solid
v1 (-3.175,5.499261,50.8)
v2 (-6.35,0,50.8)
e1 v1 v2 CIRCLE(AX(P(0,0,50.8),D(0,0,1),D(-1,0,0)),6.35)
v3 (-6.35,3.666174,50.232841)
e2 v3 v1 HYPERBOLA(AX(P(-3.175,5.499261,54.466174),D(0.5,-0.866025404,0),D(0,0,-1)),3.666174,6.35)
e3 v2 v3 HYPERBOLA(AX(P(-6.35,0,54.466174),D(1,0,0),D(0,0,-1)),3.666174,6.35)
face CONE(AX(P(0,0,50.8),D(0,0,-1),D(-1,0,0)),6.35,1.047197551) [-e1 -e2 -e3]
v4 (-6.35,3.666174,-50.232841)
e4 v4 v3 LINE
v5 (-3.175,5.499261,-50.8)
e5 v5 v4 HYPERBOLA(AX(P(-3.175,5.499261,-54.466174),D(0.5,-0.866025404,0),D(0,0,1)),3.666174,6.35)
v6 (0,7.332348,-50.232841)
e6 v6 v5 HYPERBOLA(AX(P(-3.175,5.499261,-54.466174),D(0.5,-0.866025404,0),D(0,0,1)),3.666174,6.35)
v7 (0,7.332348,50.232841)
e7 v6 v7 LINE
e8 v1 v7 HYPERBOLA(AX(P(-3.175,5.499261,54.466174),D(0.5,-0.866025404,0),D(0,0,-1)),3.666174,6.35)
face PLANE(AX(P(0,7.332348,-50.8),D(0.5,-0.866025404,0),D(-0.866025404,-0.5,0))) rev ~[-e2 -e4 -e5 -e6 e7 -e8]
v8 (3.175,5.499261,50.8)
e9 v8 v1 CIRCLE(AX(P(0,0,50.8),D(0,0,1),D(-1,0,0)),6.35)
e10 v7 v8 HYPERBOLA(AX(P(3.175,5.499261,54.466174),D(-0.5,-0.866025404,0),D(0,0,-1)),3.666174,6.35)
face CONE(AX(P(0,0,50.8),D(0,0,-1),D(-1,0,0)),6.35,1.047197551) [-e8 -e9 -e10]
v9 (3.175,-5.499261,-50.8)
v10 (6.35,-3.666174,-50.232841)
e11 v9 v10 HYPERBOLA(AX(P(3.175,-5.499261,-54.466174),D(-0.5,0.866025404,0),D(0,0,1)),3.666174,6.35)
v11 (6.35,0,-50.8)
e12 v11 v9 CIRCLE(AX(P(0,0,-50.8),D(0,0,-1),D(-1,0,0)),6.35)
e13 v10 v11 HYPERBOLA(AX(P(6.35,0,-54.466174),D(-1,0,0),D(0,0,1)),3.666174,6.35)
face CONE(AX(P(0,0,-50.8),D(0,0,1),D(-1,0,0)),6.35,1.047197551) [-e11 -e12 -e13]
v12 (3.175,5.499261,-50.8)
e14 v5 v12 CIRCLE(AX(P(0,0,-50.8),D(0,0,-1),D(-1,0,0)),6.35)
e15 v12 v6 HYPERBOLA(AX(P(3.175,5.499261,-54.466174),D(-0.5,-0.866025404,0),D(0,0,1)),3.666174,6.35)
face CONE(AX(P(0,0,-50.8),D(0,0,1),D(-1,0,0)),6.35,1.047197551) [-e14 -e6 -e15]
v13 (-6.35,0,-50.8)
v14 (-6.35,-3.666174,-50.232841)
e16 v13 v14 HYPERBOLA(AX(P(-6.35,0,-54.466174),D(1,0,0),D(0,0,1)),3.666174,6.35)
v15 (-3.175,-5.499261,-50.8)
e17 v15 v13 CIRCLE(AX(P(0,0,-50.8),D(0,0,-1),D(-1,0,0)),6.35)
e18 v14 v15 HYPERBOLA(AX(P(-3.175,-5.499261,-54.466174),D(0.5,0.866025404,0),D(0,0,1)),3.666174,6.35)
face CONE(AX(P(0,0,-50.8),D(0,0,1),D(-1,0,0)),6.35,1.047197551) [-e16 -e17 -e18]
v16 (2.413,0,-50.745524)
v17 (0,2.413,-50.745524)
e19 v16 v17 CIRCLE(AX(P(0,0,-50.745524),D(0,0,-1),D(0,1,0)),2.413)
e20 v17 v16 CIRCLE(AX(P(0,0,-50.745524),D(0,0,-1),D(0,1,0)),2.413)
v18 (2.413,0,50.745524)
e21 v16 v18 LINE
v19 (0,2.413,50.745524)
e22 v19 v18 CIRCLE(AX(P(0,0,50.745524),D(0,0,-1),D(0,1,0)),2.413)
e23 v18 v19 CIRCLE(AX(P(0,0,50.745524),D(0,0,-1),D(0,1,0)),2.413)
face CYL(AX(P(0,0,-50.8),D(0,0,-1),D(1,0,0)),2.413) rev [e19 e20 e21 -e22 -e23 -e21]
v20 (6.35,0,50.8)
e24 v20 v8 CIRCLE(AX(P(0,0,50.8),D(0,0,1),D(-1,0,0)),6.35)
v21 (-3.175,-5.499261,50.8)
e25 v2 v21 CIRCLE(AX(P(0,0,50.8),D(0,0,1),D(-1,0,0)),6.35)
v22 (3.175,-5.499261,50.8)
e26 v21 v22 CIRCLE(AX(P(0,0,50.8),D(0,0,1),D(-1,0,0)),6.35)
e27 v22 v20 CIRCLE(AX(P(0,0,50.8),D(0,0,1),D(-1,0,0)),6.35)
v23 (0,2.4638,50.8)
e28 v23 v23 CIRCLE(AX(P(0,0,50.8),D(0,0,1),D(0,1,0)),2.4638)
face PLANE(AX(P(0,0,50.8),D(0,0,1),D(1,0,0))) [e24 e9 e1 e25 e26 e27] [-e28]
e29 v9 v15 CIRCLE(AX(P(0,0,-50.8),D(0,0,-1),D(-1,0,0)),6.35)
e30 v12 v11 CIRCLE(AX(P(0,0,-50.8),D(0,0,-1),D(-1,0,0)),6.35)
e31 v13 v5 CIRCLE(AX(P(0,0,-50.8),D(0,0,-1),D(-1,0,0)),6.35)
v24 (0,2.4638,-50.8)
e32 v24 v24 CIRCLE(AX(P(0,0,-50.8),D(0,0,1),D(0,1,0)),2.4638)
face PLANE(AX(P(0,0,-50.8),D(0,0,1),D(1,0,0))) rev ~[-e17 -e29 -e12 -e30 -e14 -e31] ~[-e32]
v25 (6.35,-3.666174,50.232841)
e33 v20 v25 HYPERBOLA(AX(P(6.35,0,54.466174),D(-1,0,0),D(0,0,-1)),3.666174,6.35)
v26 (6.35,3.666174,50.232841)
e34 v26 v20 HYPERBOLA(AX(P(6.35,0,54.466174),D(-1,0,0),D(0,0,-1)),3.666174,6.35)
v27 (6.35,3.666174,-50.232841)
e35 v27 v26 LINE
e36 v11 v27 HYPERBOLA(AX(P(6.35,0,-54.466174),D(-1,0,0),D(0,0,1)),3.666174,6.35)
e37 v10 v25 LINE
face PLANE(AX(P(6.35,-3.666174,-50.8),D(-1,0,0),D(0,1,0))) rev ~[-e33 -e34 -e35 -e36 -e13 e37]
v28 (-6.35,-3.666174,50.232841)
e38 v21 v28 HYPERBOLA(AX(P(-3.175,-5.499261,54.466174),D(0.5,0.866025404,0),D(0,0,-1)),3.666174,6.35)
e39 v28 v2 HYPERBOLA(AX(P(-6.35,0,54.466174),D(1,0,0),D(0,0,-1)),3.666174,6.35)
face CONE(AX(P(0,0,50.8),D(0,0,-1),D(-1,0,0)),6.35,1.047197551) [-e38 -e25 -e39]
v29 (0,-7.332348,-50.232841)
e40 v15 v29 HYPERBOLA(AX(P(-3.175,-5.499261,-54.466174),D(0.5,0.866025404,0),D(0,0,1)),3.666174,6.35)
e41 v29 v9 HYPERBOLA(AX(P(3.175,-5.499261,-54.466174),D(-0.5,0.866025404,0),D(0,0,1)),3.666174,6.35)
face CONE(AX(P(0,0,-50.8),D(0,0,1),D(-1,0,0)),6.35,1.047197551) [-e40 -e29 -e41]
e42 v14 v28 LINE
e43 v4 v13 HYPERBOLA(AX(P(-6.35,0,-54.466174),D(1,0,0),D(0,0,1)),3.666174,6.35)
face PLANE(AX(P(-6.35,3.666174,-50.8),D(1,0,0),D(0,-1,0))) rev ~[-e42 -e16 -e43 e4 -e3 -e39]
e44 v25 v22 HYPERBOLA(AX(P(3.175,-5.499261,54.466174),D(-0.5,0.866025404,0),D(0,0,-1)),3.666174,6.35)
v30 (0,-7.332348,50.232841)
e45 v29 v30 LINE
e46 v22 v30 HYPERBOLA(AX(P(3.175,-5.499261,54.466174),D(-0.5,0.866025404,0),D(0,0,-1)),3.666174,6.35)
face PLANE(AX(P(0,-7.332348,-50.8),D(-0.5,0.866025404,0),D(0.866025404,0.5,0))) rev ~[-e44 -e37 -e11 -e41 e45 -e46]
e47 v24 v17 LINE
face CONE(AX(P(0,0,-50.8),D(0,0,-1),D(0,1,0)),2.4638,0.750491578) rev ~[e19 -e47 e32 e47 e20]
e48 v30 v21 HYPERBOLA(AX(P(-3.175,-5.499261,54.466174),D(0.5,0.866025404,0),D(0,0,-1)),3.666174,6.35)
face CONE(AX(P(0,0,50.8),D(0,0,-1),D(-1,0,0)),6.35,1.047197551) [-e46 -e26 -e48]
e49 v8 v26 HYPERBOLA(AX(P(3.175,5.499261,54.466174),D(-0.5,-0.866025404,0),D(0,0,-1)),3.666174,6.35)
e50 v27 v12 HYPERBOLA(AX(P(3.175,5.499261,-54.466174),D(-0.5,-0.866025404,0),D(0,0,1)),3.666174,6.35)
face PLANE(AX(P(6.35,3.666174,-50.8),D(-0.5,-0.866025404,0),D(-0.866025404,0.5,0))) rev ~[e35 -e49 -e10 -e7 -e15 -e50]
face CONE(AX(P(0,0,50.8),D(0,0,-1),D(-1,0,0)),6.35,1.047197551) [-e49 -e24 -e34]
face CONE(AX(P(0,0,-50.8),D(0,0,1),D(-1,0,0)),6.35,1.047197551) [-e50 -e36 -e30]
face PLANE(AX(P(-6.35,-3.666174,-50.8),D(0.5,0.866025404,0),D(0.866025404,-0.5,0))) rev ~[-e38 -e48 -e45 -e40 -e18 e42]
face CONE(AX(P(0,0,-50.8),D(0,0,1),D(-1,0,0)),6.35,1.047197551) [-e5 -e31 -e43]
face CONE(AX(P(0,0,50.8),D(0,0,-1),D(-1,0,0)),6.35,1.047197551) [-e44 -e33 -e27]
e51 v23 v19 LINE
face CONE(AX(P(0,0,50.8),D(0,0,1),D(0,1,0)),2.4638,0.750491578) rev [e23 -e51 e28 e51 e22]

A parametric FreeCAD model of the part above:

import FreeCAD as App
import Part
import Sketcher
from FreeCAD import Vector
Q = App.Units.Quantity


def faces_at(feature, points):
    """Names of the faces that lie closest to the given points."""
    faces = feature.Shape.Faces
    near = lambda p: min(range(len(faces)), key=lambda i: faces[i].distToShape(Part.Vertex(*p))[0])
    return sorted({f"Face{near(p) + 1}" for p in points})


def add_polygon(sketch, points):
    """Adds a closed chain of lines whose ends are joined by coincident constraints."""
    first, n = sketch.GeometryCount, len(points)
    for a, b in zip(points, points[1:] + points[:1]):
        sketch.addGeometry(Part.LineSegment(App.Vector(*a, 0), App.Vector(*b, 0)), False)
    for i in range(n):
        sketch.addConstraint(Sketcher.Constraint("Coincident", first + i, 2, first + (i + 1) % n, 1))

doc = App.newDocument("Part")
params = doc.addObject("Spreadsheet::Sheet", "Params")
for row, (alias, value) in enumerate([
    ("sketch1_diameter", "0.19 in"),
    ("pad1_length", "2 in"),
    ("pad1_length2", "2 in"),
    ("sketch2_width", "0.097 in"),
    ("groove_angle", "360 deg"),
    ("sketch3_diameter", "0.5 in"),
    ("pad2_length", "103.061971 mm"),
    ("draft_angle", "60 deg"),
    ("sketch4_diameter", "0.5 in"),
    ("pad3_length", "103.061971 mm"),
    ("draft2_angle", "60 deg"),
], start=1):
    params.set(f"A{row}", alias)
    params.set(f"B{row}", "=" + value)
    params.setAlias(f"B{row}", alias)

body = doc.addObject("PartDesign::Body", "Body")

sketch1 = body.newObject("Sketcher::SketchObject", "Sketch")
sketch1.AttachmentSupport = (doc.getObject("XY_Plane"), [""])
sketch1.MapMode = "FlatFace"
add_polygon(sketch1, [(0, 7.3), (-6.3, 3.7), (-6.3, -3.7), (0, -7.3), (6.3, -3.7), (6.3, 3.7)])
sketch1.addGeometry(Part.Circle(Vector(0, 0, 0), Vector(0, 0, 1), 2.4), False)
sketch1.addConstraint(Sketcher.Constraint("Vertical", 1))
sketch1.addConstraint(Sketcher.Constraint("Vertical", 4))
sketch1.addConstraint(Sketcher.Constraint("Coincident", 6, 3, -1, 1))
sketch1.addConstraint(Sketcher.Constraint("Symmetric", 0, 2, 3, 2, -1, 1))
sketch1.addConstraint(Sketcher.Constraint("Symmetric", 2, 2, 5, 2, -1, 1))
sketch1.addConstraint(Sketcher.Constraint("PointOnObject", 2, 2, -2))
sketch1.addConstraint(Sketcher.Constraint("Parallel", 2, 5))
sketch1.addConstraint(Sketcher.Constraint("Horizontal", 1, 2, 3, 2))
sketch1.addConstraint(Sketcher.Constraint("Diameter", 6, Q("0.19 in")))
sketch1.addConstraint(Sketcher.Constraint("Angle", 0, Q("-150 deg")))
sketch1.addConstraint(Sketcher.Constraint("DistanceX", 1, 2, 3, 2, Q("0.5 in")))
sketch1.addConstraint(Sketcher.Constraint("DistanceY", 1, 2, 1, 1, Q("7.332348 mm")))
sketch1.setExpression("Constraints[14]", "Params.sketch1_diameter")
pad1 = body.newObject("PartDesign::Pad", "Pad")
pad1.Profile = sketch1
pad1.Type = "TwoLengths"
pad1.setExpression("Length", "Params.pad1_length")
pad1.setExpression("Length2", "Params.pad1_length2")

sketch2 = body.newObject("Sketcher::SketchObject", "Sketch001")
sketch2.AttachmentSupport = (doc.getObject("YZ_Plane"), [""])
sketch2.MapMode = "FlatFace"
add_polygon(sketch2, [(0, -50.8), (2.5, -50.8), (0, -48.2)])
sketch2.addConstraint(Sketcher.Constraint("Horizontal", 0))
sketch2.addConstraint(Sketcher.Constraint("Vertical", 2))
sketch2.addConstraint(Sketcher.Constraint("PointOnObject", 1, 2, -2))
sketch2.addConstraint(Sketcher.Constraint("DistanceY", 0, 2, -1, 1, Q("2 in")))
sketch2.addConstraint(Sketcher.Constraint("Angle", 1, Q("133 deg")))
sketch2.addConstraint(Sketcher.Constraint("DistanceX", 0, 1, 0, 2, Q("0.097 in")))
sketch2.setExpression("Constraints[8]", "Params.sketch2_width")
groove = body.newObject("PartDesign::Groove", "Groove")
groove.Profile = sketch2
groove.ReferenceAxis = (sketch2, ["V_Axis"])
groove.setExpression("Angle", "Params.groove_angle")
body2 = doc.addObject("PartDesign::Body", "Body001")

sketch3 = body2.newObject("Sketcher::SketchObject", "Sketch002")
sketch3.AttachmentSupport = (doc.getObject("XY_Plane001"), [""])
sketch3.MapMode = "FlatFace"
sketch3.AttachmentOffset = App.Placement(Vector(0, 0, -2 * 25.4), App.Rotation())
add_polygon(sketch3, [(196, 197), (196, -197), (-196, -197), (-196, 197)])
sketch3.addGeometry(Part.Circle(Vector(0, 0, 0), Vector(0, 0, 1), 6), False)
sketch3.addConstraint(Sketcher.Constraint("Vertical", 0))
sketch3.addConstraint(Sketcher.Constraint("Horizontal", 1))
sketch3.addConstraint(Sketcher.Constraint("Vertical", 2))
sketch3.addConstraint(Sketcher.Constraint("Horizontal", 3))
sketch3.addConstraint(Sketcher.Constraint("Coincident", 4, 3, -1, 1))
sketch3.addConstraint(Sketcher.Constraint("Symmetric", 0, 2, 2, 2, -1, 1))
sketch3.addConstraint(Sketcher.Constraint("Diameter", 4, Q("0.5 in")))
sketch3.addConstraint(Sketcher.Constraint("DistanceX", 1, 2, 1, 1, Q("392.404 mm")))
sketch3.addConstraint(Sketcher.Constraint("DistanceY", 0, 2, 0, 1, Q("394.368 mm")))
sketch3.setExpression("Constraints[10]", "Params.sketch3_diameter")
pad2 = body2.newObject("PartDesign::Pad", "Pad001")
pad2.Profile = sketch3
pad2.setExpression("Length", "Params.pad2_length")
doc.recompute()

datumplane = body2.newObject("PartDesign::Plane", "DatumPlane")
datumplane.AttachmentSupport = (doc.getObject("XY_Plane001"), [""])
datumplane.MapMode = "FlatFace"
datumplane.AttachmentOffset = App.Placement(Vector(0, 0, -2 * 25.4), App.Rotation())
draft = body2.newObject("PartDesign::Draft", "Draft")
draft.Base = (pad2, faces_at(pad2, [
    (0, -197.184, 0.731),
    (-196.202, 0, 0.731),
    (0, 197.184, 0.731),
    (196.202, 0, 0.731),
    (6.35, 0, 0.731),
]))
draft.NeutralPlane = (datumplane, [""])
draft.setExpression("Angle", "Params.draft_angle")
draft.Reversed = False
doc.recompute()

boolean = body.newObject("PartDesign::Boolean", "Boolean")
boolean.Type = "Cut"
boolean.addObjects([body2])
doc.recompute()

mirrored = body.newObject("PartDesign::Mirrored", "Mirrored")
mirrored.Originals = [groove]
mirrored.MirrorPlane = (doc.getObject("XY_Plane"), [""])
body.Tip = mirrored
body3 = doc.addObject("PartDesign::Body", "Body002")

sketch4 = body3.newObject("Sketcher::SketchObject", "Sketch003")
sketch4.AttachmentSupport = (doc.getObject("XY_Plane002"), [""])
sketch4.MapMode = "FlatFace"
sketch4.AttachmentOffset = App.Placement(Vector(0, 0, 2 * 25.4), App.Rotation())
add_polygon(sketch4, [(196, -197), (196, 197), (-196, 197), (-196, -197)])
sketch4.addGeometry(Part.Circle(Vector(0, 0, 0), Vector(0, 0, 1), 6), False)
sketch4.addConstraint(Sketcher.Constraint("Vertical", 0))
sketch4.addConstraint(Sketcher.Constraint("Horizontal", 1))
sketch4.addConstraint(Sketcher.Constraint("Vertical", 2))
sketch4.addConstraint(Sketcher.Constraint("Horizontal", 3))
sketch4.addConstraint(Sketcher.Constraint("Coincident", 4, 3, -1, 1))
sketch4.addConstraint(Sketcher.Constraint("Symmetric", 0, 2, 2, 2, -1, 1))
sketch4.addConstraint(Sketcher.Constraint("Diameter", 4, Q("0.5 in")))
sketch4.addConstraint(Sketcher.Constraint("DistanceX", 1, 2, 1, 1, Q("392.404 mm")))
sketch4.addConstraint(Sketcher.Constraint("DistanceY", 0, 1, 0, 2, Q("394.368 mm")))
sketch4.setExpression("Constraints[10]", "Params.sketch4_diameter")
pad3 = body3.newObject("PartDesign::Pad", "Pad002")
pad3.Profile = sketch4
pad3.setExpression("Length", "Params.pad3_length")
pad3.Reversed = True
doc.recompute()

datumplane2 = body3.newObject("PartDesign::Plane", "DatumPlane001")
datumplane2.AttachmentSupport = (doc.getObject("XY_Plane002"), [""])
datumplane2.MapMode = "FlatFace"
datumplane2.AttachmentOffset = App.Placement(Vector(0, 0, 2 * 25.4), App.Rotation())
draft2 = body3.newObject("PartDesign::Draft", "Draft001")
draft2.Base = (pad3, faces_at(pad3, [
    (0, -197.184, -0.731),
    (-196.202, 0, -0.731),
    (0, 197.184, -0.731),
    (196.202, 0, -0.731),
    (6.35, 0, -0.731),
]))
draft2.NeutralPlane = (datumplane2, [""])
draft2.setExpression("Angle", "Params.draft2_angle")
draft2.Reversed = True
doc.recompute()

boolean2 = body.newObject("PartDesign::Boolean", "Boolean001")
boolean2.Type = "Cut"
boolean2.addObjects([body3])

doc.recompute()
